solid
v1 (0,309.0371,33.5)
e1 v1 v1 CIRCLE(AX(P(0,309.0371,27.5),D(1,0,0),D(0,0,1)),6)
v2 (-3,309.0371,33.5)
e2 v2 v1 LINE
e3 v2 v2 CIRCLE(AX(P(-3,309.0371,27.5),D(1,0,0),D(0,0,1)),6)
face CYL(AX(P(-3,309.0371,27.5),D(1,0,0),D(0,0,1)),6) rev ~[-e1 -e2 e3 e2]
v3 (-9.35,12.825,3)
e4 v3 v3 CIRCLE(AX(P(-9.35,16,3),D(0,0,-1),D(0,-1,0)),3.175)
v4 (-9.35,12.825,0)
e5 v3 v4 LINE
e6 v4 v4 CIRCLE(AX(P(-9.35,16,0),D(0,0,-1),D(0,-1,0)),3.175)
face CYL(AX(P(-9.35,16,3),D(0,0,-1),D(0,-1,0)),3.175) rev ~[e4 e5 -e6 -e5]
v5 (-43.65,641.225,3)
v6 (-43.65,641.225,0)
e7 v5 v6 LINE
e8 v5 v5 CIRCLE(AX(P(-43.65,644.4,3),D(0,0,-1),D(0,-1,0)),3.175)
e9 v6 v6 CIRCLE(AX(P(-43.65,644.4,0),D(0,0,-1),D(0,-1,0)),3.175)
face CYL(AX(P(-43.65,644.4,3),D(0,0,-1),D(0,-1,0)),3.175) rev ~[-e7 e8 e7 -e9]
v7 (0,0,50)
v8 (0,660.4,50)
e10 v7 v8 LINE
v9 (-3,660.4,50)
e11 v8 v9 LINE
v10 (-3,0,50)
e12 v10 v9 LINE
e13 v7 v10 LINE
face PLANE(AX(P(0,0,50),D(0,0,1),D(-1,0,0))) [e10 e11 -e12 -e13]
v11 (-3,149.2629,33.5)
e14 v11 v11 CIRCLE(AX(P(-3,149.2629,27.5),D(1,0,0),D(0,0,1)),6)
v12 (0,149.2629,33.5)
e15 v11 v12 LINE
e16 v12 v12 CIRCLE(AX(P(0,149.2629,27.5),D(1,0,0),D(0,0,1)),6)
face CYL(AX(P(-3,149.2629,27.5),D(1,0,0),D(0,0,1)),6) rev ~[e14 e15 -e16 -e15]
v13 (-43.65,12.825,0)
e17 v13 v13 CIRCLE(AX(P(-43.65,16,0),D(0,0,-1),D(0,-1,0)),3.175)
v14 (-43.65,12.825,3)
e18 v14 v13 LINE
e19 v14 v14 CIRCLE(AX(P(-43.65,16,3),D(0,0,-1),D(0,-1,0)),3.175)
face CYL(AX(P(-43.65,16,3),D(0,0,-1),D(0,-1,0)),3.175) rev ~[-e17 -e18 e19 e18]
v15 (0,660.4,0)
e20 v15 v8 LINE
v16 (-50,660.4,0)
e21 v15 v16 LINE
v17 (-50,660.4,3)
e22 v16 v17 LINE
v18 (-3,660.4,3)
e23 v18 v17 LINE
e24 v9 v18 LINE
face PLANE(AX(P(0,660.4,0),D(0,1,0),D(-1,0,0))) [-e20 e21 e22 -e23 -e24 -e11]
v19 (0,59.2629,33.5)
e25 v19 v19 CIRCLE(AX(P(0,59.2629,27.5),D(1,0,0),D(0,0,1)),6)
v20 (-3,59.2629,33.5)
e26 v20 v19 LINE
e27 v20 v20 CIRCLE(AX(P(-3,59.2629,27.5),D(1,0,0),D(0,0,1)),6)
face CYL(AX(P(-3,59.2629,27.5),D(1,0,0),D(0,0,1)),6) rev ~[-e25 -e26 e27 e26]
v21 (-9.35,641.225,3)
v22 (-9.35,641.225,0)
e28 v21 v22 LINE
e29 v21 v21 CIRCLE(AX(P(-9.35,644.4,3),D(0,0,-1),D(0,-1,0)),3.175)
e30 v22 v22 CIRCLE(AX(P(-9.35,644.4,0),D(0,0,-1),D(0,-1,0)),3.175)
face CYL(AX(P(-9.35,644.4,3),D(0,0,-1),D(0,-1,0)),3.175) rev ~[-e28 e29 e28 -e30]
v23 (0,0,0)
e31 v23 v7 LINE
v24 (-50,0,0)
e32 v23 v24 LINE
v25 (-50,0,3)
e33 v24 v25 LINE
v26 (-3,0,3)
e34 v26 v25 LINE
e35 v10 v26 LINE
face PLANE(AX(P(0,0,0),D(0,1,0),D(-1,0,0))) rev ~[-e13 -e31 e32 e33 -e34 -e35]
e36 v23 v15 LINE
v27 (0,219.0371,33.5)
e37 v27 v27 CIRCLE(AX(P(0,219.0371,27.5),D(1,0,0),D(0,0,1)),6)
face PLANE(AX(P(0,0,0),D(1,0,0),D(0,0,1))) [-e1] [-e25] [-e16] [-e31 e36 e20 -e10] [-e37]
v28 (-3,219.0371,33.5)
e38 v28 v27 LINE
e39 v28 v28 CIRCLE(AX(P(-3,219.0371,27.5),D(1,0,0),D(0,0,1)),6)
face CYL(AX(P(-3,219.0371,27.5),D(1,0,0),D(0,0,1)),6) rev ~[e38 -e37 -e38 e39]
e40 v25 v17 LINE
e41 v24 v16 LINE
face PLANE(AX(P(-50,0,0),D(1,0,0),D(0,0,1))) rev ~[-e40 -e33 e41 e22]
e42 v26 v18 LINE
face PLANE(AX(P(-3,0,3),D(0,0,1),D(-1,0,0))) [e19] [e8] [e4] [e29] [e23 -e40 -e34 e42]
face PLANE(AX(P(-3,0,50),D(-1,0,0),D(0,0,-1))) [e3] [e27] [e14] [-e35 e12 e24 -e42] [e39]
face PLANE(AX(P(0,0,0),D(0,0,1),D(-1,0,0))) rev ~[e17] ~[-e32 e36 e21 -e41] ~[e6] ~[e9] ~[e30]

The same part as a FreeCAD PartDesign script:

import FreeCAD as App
import Part
import Sketcher

V = App.Vector
Q = App.Units.Quantity

doc = App.newDocument("Part")
body = doc.addObject("PartDesign::Body", "Body")

sketch1 = doc.addObject("Sketcher::SketchObject", "Sketch")
body.addObject(sketch1)
sketch1.AttachmentSupport = (doc.XZ_Plane, [""])
sketch1.MapMode = "FlatFace"
sketch1.addGeometry([
    Part.LineSegment(V(0, 50, 0), V(0, 0, 0)),
    Part.LineSegment(V(0, 0, 0), V(-50, 0, 0)),
    Part.LineSegment(V(-50, 0, 0), V(-50, 3, 0)),
    Part.LineSegment(V(-50, 3, 0), V(-3, 3, 0)),
    Part.LineSegment(V(-3, 3, 0), V(-3, 50, 0)),
    Part.LineSegment(V(-3, 50, 0), V(0, 50, 0)),
], False)
sketch1.addConstraint([
    Sketcher.Constraint("Coincident", 0, 2, 1, 1),
    Sketcher.Constraint("Coincident", 1, 2, 2, 1),
    Sketcher.Constraint("Coincident", 2, 2, 3, 1),
    Sketcher.Constraint("Coincident", 3, 2, 4, 1),
    Sketcher.Constraint("Coincident", 4, 2, 5, 1),
    Sketcher.Constraint("Coincident", 5, 2, 0, 1),
    Sketcher.Constraint("Vertical", 0),
    Sketcher.Constraint("Horizontal", 1),
    Sketcher.Constraint("Vertical", 2),
    Sketcher.Constraint("Horizontal", 3),
    Sketcher.Constraint("Vertical", 4),
    Sketcher.Constraint("Horizontal", 5),
    Sketcher.Constraint("Coincident", 0, 2, -1, 1),
    Sketcher.Constraint("Equal", 1, 0),
    Sketcher.Constraint("Equal", 5, 2),
    Sketcher.Constraint("DistanceX", 1, 2, 1, 1, Q("1.9685 in")),
    Sketcher.Constraint("DistanceX", 5, 1, 5, 2, Q("0.1181 in")),
])
pad1 = doc.addObject("PartDesign::Pad", "Pad")
body.addObject(pad1)
pad1.Profile = sketch1
pad1.Length = Q("26 in")
pad1.Reversed = True

sketch2 = doc.addObject("Sketcher::SketchObject", "Sketch001")
body.addObject(sketch2)
sketch2.AttachmentSupport = (doc.XY_Plane, [""])
sketch2.MapMode = "FlatFace"
sketch2.AttachmentOffset = App.Placement(V(0, 0, 0.1181102 * 25.4), App.Rotation())
sketch2.addGeometry([
    Part.Circle(V(-9.35, 644.4, 0), V(0, 0, 1), 3.175),
    Part.Circle(V(-43.65, 644.4, 0), V(0, 0, 1), 3.175),
    Part.Circle(V(-9.35, 16, 0), V(0, 0, 1), 3.175),
    Part.Circle(V(-43.65, 16, 0), V(0, 0, 1), 3.175),
], False)
sketch2.addConstraint([
    Sketcher.Constraint("Equal", 0, 1),
    Sketcher.Constraint("Equal", 1, 2),
    Sketcher.Constraint("Equal", 2, 3),
    Sketcher.Constraint("Horizontal", 0, 3, 1, 3),
    Sketcher.Constraint("Horizontal", 2, 3, 3, 3),
    Sketcher.Constraint("Vertical", 0, 3, 2, 3),
    Sketcher.Constraint("Vertical", 1, 3, 3, 3),
    Sketcher.Constraint("Diameter", 0, Q("0.25 in")),
    Sketcher.Constraint("DistanceX", 0, 3, -1, 1, Q("0.3681 in")),
    Sketcher.Constraint("DistanceX", 1, 3, -1, 1, Q("1.7185 in")),
    Sketcher.Constraint("DistanceY", -1, 1, 0, 3, 644.4),
    Sketcher.Constraint("DistanceY", -1, 1, 2, 3, 16.0),
])
doc.recompute()
hole = doc.addObject("PartDesign::Hole", "Hole")
body.addObject(hole)
hole.Profile = sketch2
hole.ThreadType = "None"
hole.Diameter = Q("0.25 in")
hole.DepthType = "Dimension"
hole.Depth = Q("0.1181102 in")
hole.DrillPoint = "Angled"
hole.DrillPointAngle = 118

sketch3 = doc.addObject("Sketcher::SketchObject", "Sketch002")
body.addObject(sketch3)
sketch3.AttachmentSupport = (doc.YZ_Plane, [""])
sketch3.MapMode = "FlatFace"
sketch3.AttachmentOffset = App.Placement(V(0, 0, -0.1181102 * 25.4), App.Rotation())
sketch3.addGeometry([
    Part.Circle(V(59.2629, 27.5, 0), V(0, 0, 1), 6),
    Part.Circle(V(149.2629, 27.5, 0), V(0, 0, 1), 6),
    Part.Circle(V(219.0371, 27.5, 0), V(0, 0, 1), 6),
    Part.Circle(V(309.0371, 27.5, 0), V(0, 0, 1), 6),
], False)
sketch3.addConstraint([
    Sketcher.Constraint("Equal", 0, 1),
    Sketcher.Constraint("Equal", 1, 2),
    Sketcher.Constraint("Equal", 2, 3),
    Sketcher.Constraint("Horizontal", 0, 3, 1, 3),
    Sketcher.Constraint("Horizontal", 1, 3, 2, 3),
    Sketcher.Constraint("Horizontal", 2, 3, 3, 3),
    Sketcher.Constraint("Diameter", 0, 12.0),
    Sketcher.Constraint("DistanceX", -1, 1, 1, 3, Q("5.8765 in")),
    Sketcher.Constraint("DistanceX", -1, 1, 2, 3, Q("8.6235 in")),
    Sketcher.Constraint("DistanceX", 0, 3, 1, 3, Q("3.5433 in")),
    Sketcher.Constraint("DistanceX", 2, 3, 3, 3, Q("3.5433 in")),
    Sketcher.Constraint("DistanceY", -1, 1, 0, 3, 27.5),
])
doc.recompute()
hole2 = doc.addObject("PartDesign::Hole", "Hole001")
body.addObject(hole2)
hole2.Profile = sketch3
hole2.ThreadType = "None"
hole2.Diameter = 12
hole2.DepthType = "Dimension"
hole2.Depth = Q("0.1181102 in")
hole2.DrillPoint = "Angled"
hole2.DrillPointAngle = 118
hole2.Reversed = True

doc.recompute()
